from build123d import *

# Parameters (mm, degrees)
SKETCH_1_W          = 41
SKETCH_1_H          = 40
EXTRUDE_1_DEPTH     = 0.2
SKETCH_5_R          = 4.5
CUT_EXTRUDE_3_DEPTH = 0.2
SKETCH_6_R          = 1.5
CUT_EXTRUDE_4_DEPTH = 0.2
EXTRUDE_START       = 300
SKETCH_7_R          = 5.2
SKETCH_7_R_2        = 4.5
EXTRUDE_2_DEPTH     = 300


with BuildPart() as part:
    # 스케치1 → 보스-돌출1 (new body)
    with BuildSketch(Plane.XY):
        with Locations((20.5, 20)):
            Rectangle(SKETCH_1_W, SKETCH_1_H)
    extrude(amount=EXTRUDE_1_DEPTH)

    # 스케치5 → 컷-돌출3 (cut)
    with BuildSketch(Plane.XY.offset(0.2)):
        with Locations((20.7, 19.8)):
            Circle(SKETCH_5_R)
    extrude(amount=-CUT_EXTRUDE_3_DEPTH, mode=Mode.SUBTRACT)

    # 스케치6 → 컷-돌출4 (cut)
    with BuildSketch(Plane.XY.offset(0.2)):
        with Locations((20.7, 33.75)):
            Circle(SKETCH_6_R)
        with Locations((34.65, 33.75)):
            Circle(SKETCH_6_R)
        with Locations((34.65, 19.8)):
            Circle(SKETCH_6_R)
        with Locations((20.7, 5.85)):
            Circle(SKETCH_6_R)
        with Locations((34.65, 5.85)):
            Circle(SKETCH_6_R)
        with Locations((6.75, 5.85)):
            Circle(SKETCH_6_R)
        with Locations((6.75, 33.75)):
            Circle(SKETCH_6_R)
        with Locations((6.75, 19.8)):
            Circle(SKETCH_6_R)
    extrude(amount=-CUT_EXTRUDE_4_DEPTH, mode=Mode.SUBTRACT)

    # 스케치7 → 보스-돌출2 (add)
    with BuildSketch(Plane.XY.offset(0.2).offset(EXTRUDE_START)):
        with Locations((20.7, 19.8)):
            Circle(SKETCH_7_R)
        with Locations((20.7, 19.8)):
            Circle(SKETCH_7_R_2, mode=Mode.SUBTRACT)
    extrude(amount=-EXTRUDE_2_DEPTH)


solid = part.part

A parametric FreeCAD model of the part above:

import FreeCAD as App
import Part
import Sketcher
from FreeCAD import Vector
Q = App.Units.Quantity


def add_polygon(sketch, points):
    """Adds a closed chain of lines whose ends are joined by coincident constraints."""
    first, n = sketch.GeometryCount, len(points)
    for a, b in zip(points, points[1:] + points[:1]):
        sketch.addGeometry(Part.LineSegment(App.Vector(*a, 0), App.Vector(*b, 0)), False)
    for i in range(n):
        sketch.addConstraint(Sketcher.Constraint("Coincident", first + i, 2, first + (i + 1) % n, 1))

doc = App.newDocument("Part")
body = doc.addObject("PartDesign::Body", "Body")

# Sketch on XY plane
sketch1 = doc.addObject("Sketcher::SketchObject", "Sketch")
body.addObject(sketch1)
sketch1.AttachmentSupport = (doc.XY_Plane, [""])
sketch1.MapMode = "FlatFace"
add_polygon(sketch1, [(0, 40), (0, 0), (41, 0), (41, 40)])  # lines 0-3
sketch1.addConstraint(Sketcher.Constraint("Vertical", 0))
sketch1.addConstraint(Sketcher.Constraint("Horizontal", 1))
sketch1.addConstraint(Sketcher.Constraint("Vertical", 2))
sketch1.addConstraint(Sketcher.Constraint("Horizontal", 3))
sketch1.addConstraint(Sketcher.Constraint("Coincident", 0, 2, -1, 1))
sketch1.addConstraint(Sketcher.Constraint("DistanceX", 1, 1, 1, 2, Q("41 mm")))
sketch1.addConstraint(Sketcher.Constraint("DistanceY", 0, 2, 0, 1, Q("40 mm")))
pad1 = doc.addObject("PartDesign::Pad", "Pad")
body.addObject(pad1)
pad1.Profile = sketch1
pad1.Length = 0.2

# Sketch on XY plane
sketch2 = doc.addObject("Sketcher::SketchObject", "Sketch001")
body.addObject(sketch2)
sketch2.AttachmentSupport = (doc.XY_Plane, [""])
sketch2.MapMode = "FlatFace"
sketch2.AttachmentOffset = App.Placement(Vector(0, 0, 0.2), App.Rotation())
sketch2.addGeometry(Part.Circle(Vector(20.7, 19.8, 0), Vector(0, 0, 1), 4.5), False)
sketch2.addConstraint(Sketcher.Constraint("Diameter", 0, Q("9 mm")))
sketch2.addConstraint(Sketcher.Constraint("DistanceX", -1, 1, 0, 3, Q("20.7 mm")))
sketch2.addConstraint(Sketcher.Constraint("DistanceY", -1, 1, 0, 3, Q("19.8 mm")))
pocket1 = doc.addObject("PartDesign::Pocket", "Pocket")
body.addObject(pocket1)
pocket1.Profile = sketch2
pocket1.Length = 0.2

# Sketch on XY plane
sketch3 = doc.addObject("Sketcher::SketchObject", "Sketch002")
body.addObject(sketch3)
sketch3.AttachmentSupport = (doc.XY_Plane, [""])
sketch3.MapMode = "FlatFace"
sketch3.AttachmentOffset = App.Placement(Vector(0, 0, 0.2), App.Rotation())
sketch3.addGeometry(Part.Circle(Vector(20.7, 33.75, 0), Vector(0, 0, 1), 1.5), False)
sketch3.addGeometry(Part.Circle(Vector(34.65, 33.75, 0), Vector(0, 0, 1), 1.5), False)
sketch3.addGeometry(Part.Circle(Vector(34.65, 19.8, 0), Vector(0, 0, 1), 1.5), False)
sketch3.addGeometry(Part.Circle(Vector(20.7, 5.85, 0), Vector(0, 0, 1), 1.5), False)
sketch3.addGeometry(Part.Circle(Vector(34.65, 5.85, 0), Vector(0, 0, 1), 1.5), False)
sketch3.addGeometry(Part.Circle(Vector(6.75, 5.85, 0), Vector(0, 0, 1), 1.5), False)
sketch3.addGeometry(Part.Circle(Vector(6.75, 33.75, 0), Vector(0, 0, 1), 1.5), False)
sketch3.addGeometry(Part.Circle(Vector(6.75, 19.8, 0), Vector(0, 0, 1), 1.5), False)
sketch3.addConstraint(Sketcher.Constraint("Equal", 0, 1))
sketch3.addConstraint(Sketcher.Constraint("Equal", 1, 2))
sketch3.addConstraint(Sketcher.Constraint("Equal", 2, 3))
sketch3.addConstraint(Sketcher.Constraint("Equal", 3, 4))
sketch3.addConstraint(Sketcher.Constraint("Equal", 4, 5))
sketch3.addConstraint(Sketcher.Constraint("Equal", 5, 6))
sketch3.addConstraint(Sketcher.Constraint("Equal", 6, 7))
sketch3.addConstraint(Sketcher.Constraint("Horizontal", 0, 3, 1, 3))
sketch3.addConstraint(Sketcher.Constraint("Horizontal", 3, 3, 4, 3))
sketch3.addConstraint(Sketcher.Constraint("Horizontal", 4, 3, 5, 3))
sketch3.addConstraint(Sketcher.Constraint("Horizontal", 1, 3, 6, 3))
sketch3.addConstraint(Sketcher.Constraint("Horizontal", 2, 3, 7, 3))
sketch3.addConstraint(Sketcher.Constraint("Vertical", 1, 3, 2, 3))
sketch3.addConstraint(Sketcher.Constraint("Vertical", 0, 3, 3, 3))
sketch3.addConstraint(Sketcher.Constraint("Vertical", 2, 3, 4, 3))
sketch3.addConstraint(Sketcher.Constraint("Vertical", 5, 3, 6, 3))
sketch3.addConstraint(Sketcher.Constraint("Vertical", 6, 3, 7, 3))
sketch3.addConstraint(Sketcher.Constraint("Diameter", 0, Q("3 mm")))
sketch3.addConstraint(Sketcher.Constraint("DistanceX", -1, 1, 0, 3, Q("20.7 mm")))
sketch3.addConstraint(Sketcher.Constraint("DistanceY", -1, 1, 2, 3, Q("19.8 mm")))
sketch3.addConstraint(Sketcher.Constraint("DistanceY", 3, 3, 0, 3, Q("27.9 mm")))
sketch3.addConstraint(Sketcher.Constraint("DistanceX", 5, 3, 4, 3, Q("27.9 mm")))
sketch3.addConstraint(Sketcher.Constraint("DistanceY", -1, 1, 0, 3, Q("33.75 mm")))
sketch3.addConstraint(Sketcher.Constraint("DistanceX", -1, 1, 1, 3, Q("34.65 mm")))
pocket2 = doc.addObject("PartDesign::Pocket", "Pocket001")
body.addObject(pocket2)
pocket2.Profile = sketch3
pocket2.Length = 0.2

# Sketch on XY plane
sketch4 = doc.addObject("Sketcher::SketchObject", "Sketch003")
body.addObject(sketch4)
sketch4.AttachmentSupport = (doc.XY_Plane, [""])
sketch4.MapMode = "FlatFace"
sketch4.AttachmentOffset = App.Placement(Vector(0, 0, 300.2), App.Rotation())
sketch4.addGeometry(Part.Circle(Vector(20.7, 19.8, 0), Vector(0, 0, 1), 5.2), False)
sketch4.addGeometry(Part.Circle(Vector(20.7, 19.8, 0), Vector(0, 0, 1), 4.5), False)
sketch4.addConstraint(Sketcher.Constraint("Coincident", 1, 3, 0, 3))
sketch4.addConstraint(Sketcher.Constraint("Diameter", 1, Q("9 mm")))
sketch4.addConstraint(Sketcher.Constraint("Diameter", 0, Q("10.4 mm")))
sketch4.addConstraint(Sketcher.Constraint("DistanceX", -1, 1, 0, 3, Q("20.7 mm")))
sketch4.addConstraint(Sketcher.Constraint("DistanceY", -1, 1, 0, 3, Q("19.8 mm")))
pad2 = doc.addObject("PartDesign::Pad", "Pad001")
body.addObject(pad2)
pad2.Profile = sketch4
pad2.Length = 300
pad2.Reversed = True

doc.recompute()
